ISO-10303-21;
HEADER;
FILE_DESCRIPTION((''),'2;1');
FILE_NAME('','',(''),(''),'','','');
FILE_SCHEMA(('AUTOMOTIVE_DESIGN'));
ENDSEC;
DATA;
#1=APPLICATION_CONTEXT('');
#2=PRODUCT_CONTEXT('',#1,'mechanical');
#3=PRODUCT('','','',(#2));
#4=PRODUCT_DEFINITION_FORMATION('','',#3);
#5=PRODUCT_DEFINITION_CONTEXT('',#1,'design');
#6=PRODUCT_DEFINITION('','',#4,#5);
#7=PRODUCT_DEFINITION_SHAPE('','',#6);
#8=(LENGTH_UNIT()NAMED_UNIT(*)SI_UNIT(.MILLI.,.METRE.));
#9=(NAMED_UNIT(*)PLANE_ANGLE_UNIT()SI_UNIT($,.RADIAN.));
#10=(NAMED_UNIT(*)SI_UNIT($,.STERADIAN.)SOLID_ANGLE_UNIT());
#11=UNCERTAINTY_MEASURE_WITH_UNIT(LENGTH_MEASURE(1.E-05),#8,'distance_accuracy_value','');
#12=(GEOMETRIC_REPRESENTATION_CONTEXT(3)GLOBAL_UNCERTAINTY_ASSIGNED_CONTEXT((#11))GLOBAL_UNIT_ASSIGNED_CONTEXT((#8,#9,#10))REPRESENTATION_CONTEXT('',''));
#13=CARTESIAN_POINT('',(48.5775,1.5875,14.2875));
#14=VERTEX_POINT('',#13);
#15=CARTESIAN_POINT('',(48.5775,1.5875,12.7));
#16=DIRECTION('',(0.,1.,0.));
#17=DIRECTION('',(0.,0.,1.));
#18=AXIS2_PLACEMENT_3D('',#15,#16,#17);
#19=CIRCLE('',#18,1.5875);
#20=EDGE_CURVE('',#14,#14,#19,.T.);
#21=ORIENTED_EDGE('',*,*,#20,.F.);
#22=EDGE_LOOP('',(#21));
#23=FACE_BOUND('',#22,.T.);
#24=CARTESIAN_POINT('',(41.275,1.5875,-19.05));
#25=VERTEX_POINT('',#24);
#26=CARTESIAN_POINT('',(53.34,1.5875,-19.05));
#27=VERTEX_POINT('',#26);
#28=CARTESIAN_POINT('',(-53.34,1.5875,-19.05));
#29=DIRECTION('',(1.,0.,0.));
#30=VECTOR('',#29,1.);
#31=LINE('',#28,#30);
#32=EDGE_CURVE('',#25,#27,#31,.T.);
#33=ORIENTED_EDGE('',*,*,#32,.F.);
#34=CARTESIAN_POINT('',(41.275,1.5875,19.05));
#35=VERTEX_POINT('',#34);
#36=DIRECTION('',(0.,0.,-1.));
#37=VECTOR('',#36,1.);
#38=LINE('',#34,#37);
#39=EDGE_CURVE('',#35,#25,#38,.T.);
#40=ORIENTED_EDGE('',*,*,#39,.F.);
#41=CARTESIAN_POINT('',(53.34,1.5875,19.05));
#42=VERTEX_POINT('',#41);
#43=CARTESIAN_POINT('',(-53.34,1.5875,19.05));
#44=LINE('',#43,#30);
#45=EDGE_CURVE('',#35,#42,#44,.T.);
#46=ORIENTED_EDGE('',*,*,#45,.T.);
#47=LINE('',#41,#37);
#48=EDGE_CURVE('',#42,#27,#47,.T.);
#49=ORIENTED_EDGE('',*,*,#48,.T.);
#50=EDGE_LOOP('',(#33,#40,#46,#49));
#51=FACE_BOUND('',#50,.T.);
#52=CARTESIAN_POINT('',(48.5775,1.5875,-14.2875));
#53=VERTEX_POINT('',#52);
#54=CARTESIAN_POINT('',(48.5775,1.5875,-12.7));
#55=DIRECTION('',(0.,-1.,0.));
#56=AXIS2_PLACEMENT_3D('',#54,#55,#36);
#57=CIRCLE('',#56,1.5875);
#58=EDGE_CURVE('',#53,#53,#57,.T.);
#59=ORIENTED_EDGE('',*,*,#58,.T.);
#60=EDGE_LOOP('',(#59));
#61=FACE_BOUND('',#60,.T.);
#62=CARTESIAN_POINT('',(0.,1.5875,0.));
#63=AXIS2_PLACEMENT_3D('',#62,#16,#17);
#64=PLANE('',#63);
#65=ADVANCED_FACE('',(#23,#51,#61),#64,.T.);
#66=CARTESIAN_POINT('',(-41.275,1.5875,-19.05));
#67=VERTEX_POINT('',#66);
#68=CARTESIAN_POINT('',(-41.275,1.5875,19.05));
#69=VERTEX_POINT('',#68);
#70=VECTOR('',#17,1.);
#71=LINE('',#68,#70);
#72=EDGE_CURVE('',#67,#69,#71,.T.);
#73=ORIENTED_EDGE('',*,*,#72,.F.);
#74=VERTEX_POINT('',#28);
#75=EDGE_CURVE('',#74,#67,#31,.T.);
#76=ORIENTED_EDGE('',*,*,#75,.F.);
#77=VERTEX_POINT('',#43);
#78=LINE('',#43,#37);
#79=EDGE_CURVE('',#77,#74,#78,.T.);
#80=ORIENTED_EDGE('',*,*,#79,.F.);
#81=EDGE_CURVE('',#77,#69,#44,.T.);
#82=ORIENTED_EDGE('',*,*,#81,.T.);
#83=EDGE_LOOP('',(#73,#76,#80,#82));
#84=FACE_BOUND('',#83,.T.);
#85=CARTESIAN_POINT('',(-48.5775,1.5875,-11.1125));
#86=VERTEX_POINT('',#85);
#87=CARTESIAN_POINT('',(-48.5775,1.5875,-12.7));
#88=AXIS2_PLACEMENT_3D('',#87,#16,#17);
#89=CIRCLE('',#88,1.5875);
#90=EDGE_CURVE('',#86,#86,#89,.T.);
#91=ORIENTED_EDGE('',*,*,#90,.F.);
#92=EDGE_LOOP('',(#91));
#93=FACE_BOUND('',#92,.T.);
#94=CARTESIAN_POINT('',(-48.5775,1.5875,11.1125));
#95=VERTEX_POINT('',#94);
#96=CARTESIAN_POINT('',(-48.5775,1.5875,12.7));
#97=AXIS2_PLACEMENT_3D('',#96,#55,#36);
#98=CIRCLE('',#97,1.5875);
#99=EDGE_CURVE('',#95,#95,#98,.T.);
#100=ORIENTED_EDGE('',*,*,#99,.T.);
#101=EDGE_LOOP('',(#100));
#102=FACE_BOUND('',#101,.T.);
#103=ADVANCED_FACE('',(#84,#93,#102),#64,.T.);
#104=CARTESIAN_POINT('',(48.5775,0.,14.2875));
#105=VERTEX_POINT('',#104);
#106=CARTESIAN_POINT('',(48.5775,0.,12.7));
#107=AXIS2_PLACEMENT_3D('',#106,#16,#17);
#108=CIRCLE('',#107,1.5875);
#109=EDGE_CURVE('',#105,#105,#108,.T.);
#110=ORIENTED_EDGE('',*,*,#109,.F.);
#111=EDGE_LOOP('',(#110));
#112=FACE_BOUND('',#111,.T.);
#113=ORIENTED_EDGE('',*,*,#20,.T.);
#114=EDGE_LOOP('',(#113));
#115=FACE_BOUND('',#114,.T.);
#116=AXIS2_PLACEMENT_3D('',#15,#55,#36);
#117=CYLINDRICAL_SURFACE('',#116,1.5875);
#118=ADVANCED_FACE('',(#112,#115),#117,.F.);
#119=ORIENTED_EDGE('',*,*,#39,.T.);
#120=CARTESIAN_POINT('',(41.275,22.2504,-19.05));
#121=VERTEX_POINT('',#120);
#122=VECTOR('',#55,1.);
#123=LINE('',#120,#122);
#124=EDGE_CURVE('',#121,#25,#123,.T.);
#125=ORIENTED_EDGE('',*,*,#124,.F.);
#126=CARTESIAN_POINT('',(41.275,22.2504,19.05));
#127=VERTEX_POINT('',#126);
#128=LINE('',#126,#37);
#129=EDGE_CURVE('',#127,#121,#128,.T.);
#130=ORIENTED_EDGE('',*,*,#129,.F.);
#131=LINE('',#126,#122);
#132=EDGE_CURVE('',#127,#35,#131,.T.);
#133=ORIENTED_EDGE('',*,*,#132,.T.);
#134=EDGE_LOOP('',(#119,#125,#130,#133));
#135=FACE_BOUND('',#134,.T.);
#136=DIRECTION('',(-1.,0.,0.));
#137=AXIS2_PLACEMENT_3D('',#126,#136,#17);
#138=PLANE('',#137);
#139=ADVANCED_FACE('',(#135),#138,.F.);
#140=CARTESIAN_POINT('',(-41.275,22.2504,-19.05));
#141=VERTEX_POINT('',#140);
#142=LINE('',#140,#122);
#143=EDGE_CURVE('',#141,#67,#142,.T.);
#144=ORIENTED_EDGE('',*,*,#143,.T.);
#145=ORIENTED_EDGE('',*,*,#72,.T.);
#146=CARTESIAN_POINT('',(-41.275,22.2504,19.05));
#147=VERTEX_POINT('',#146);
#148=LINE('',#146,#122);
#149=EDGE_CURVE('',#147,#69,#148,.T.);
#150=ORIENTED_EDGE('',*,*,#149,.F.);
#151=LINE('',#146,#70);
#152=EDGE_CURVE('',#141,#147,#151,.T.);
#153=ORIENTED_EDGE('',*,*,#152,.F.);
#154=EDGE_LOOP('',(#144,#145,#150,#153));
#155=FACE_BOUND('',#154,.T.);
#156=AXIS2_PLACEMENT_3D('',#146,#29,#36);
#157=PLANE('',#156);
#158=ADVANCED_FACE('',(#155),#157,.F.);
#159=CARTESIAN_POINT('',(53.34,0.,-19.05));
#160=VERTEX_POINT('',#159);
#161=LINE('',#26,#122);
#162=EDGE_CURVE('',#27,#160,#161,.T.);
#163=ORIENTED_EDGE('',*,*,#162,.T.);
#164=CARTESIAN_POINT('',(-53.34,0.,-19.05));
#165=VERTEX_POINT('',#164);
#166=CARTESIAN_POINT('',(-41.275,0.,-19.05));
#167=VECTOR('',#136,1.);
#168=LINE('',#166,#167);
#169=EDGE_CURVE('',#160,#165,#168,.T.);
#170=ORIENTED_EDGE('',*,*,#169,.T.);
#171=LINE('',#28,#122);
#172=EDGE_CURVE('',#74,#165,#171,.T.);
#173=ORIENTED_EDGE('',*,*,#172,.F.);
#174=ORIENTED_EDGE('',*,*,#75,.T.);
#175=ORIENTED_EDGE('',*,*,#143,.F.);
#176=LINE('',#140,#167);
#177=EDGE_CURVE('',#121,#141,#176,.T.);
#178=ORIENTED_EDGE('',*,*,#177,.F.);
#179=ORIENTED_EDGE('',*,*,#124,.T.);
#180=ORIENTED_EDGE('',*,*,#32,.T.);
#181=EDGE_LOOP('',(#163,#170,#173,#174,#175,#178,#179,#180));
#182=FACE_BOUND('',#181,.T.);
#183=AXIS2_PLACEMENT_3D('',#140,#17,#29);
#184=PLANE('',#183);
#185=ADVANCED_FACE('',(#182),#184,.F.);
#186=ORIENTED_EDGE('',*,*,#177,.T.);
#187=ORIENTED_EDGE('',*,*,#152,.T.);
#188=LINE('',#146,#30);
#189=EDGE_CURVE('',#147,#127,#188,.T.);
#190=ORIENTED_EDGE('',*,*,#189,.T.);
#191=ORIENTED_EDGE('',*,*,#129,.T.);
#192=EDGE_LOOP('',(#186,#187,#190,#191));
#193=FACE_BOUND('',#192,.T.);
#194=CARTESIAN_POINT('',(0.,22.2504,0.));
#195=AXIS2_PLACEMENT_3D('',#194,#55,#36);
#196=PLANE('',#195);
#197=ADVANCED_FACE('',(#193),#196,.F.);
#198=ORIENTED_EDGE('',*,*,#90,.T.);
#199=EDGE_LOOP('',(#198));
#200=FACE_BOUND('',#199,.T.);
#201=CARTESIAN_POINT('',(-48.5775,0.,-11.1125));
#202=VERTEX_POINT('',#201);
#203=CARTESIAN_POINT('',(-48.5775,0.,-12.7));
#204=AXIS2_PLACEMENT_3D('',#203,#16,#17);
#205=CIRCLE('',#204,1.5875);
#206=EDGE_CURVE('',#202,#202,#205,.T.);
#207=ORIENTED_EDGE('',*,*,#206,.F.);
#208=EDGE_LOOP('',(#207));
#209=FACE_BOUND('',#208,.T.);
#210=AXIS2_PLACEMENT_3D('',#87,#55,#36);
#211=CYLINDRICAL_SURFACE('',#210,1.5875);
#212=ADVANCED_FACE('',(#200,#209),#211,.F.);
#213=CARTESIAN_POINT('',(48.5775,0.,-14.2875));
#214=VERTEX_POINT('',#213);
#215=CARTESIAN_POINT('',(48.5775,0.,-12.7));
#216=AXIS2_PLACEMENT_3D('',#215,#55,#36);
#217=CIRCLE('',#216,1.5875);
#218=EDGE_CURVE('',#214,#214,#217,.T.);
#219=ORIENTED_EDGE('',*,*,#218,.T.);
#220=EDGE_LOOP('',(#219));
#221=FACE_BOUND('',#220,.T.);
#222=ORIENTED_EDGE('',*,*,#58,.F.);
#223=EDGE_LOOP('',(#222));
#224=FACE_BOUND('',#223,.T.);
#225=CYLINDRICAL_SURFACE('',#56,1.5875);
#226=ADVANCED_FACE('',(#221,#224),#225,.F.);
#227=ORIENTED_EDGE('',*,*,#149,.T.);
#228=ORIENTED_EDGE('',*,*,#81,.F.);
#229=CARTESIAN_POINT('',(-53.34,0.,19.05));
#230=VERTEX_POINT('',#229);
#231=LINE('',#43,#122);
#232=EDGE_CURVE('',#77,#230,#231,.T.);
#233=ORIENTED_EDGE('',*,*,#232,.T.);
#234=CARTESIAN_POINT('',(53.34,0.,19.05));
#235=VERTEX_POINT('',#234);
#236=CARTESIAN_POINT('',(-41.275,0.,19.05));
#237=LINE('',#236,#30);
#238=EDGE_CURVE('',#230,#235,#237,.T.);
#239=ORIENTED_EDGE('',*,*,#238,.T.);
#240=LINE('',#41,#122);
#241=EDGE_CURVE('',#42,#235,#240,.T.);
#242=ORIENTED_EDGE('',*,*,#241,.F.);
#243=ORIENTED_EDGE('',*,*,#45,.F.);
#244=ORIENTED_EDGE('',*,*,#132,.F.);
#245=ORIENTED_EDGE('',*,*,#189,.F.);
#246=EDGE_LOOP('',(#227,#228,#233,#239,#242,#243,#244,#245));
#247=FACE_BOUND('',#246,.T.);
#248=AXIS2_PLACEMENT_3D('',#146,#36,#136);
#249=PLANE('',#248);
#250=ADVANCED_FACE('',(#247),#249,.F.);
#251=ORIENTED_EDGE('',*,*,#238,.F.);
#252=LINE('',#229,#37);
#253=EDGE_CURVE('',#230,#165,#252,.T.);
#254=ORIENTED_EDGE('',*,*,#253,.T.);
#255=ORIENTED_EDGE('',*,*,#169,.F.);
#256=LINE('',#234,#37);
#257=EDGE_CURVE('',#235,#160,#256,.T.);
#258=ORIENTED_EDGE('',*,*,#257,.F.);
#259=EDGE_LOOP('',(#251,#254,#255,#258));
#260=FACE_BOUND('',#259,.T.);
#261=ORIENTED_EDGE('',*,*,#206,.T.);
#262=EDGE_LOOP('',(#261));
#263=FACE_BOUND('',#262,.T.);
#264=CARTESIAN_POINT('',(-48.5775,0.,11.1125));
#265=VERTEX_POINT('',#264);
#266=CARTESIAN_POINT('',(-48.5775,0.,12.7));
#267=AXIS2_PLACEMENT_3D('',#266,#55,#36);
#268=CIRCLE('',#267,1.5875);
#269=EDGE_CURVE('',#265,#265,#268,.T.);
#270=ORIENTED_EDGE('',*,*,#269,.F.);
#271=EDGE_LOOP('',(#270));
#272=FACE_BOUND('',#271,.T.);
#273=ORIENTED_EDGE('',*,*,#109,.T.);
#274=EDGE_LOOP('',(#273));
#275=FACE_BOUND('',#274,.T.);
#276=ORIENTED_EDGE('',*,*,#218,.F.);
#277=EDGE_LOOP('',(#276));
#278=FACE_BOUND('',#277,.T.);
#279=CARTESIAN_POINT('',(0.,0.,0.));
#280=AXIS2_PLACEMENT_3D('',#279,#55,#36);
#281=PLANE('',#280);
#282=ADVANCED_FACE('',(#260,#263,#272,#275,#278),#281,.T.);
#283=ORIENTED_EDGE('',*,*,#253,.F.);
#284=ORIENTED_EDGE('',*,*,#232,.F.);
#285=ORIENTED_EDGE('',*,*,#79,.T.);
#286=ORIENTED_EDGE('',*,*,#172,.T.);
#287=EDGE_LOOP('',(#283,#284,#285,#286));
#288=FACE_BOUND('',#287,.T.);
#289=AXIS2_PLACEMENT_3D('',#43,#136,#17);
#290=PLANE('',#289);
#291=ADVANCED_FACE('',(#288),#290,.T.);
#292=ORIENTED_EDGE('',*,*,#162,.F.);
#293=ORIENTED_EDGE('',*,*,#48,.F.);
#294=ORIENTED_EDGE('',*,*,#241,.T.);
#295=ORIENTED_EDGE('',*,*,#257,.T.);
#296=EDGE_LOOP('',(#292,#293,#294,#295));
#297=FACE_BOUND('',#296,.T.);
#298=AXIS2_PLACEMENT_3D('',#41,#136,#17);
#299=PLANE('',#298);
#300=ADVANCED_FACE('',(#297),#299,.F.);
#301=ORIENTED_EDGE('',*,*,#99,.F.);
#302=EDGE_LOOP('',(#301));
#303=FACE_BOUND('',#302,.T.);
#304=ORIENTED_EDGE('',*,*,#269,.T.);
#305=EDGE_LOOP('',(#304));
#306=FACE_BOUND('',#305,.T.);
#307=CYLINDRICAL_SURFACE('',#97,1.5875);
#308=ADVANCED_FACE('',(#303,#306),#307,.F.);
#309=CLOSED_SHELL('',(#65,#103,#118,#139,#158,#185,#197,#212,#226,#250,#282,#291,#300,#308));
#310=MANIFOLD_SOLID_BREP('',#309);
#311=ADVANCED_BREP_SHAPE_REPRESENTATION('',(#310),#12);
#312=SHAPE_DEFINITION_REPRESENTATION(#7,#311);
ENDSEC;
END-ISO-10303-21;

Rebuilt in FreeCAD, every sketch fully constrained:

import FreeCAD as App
import Part
import Sketcher

V = App.Vector
Q = App.Units.Quantity


def add_polygon(sketch, points):
    """Adds a closed chain of lines whose ends are joined by coincident constraints."""
    first, n = sketch.GeometryCount, len(points)
    for a, b in zip(points, points[1:] + points[:1]):
        sketch.addGeometry(Part.LineSegment(App.Vector(*a, 0), App.Vector(*b, 0)), False)
    for i in range(n):
        sketch.addConstraint(Sketcher.Constraint("Coincident", first + i, 2, first + (i + 1) % n, 1))

doc = App.newDocument("Part")
params = doc.addObject("Spreadsheet::Sheet", "Params")
for row, (alias, value) in enumerate([
    ("sketch1_height", "1.5 in"),
    ("sketch1_width", "3.25 in"),
    ("pad1_length", "0.876 in"),
    ("sketch2_diameter", "0.125 in"),
    ("sketch2_width", "4.2 in"),
    ("sketch2_height", "1.5 in"),
    ("pad2_length", "0.0625 in"),
], start=1):
    params.set(f"A{row}", alias)
    params.set(f"B{row}", "=" + value)
    params.setAlias(f"B{row}", alias)

body = doc.addObject("PartDesign::Body", "Body")

# Sketch on XZ plane
sketch1 = body.newObject("Sketcher::SketchObject", "Sketch")
sketch1.AttachmentSupport = (doc.getObject("XZ_Plane"), [""])
sketch1.MapMode = "FlatFace"
add_polygon(sketch1, [(-41.275, -19.05), (-41.275, 19.05), (41.275, 19.05), (41.275, -19.05)])  # lines 0-3
sketch1.addConstraint([
    Sketcher.Constraint("Vertical", 0),
    Sketcher.Constraint("Horizontal", 1),
    Sketcher.Constraint("Vertical", 2),
    Sketcher.Constraint("Horizontal", 3),
    Sketcher.Constraint("Symmetric", 0, 2, 2, 2, -1, 1),
    Sketcher.Constraint("DistanceY", 0, 1, 0, 2, Q("1.5 in")),
    Sketcher.Constraint("DistanceX", 1, 1, 1, 2, Q("3.25 in")),
])
sketch1.setExpression("Constraints[9]", "Params.sketch1_height")
sketch1.setExpression("Constraints[10]", "Params.sketch1_width")
pad1 = body.newObject("PartDesign::Pad", "Pad")
pad1.Profile = sketch1
pad1.setExpression("Length", "Params.pad1_length")
pad1.Reversed = True

# Sketch on XZ plane
sketch2 = body.newObject("Sketcher::SketchObject", "Sketch001")
sketch2.AttachmentSupport = (doc.getObject("XZ_Plane"), [""])
sketch2.MapMode = "FlatFace"
add_polygon(sketch2, [(-53.34, -19.05), (-53.34, 19.05), (53.34, 19.05), (53.34, -19.05)])  # lines 0-3
sketch2.addGeometry(Part.Circle(V(-48.5775, 12.7, 0), V(0, 0, 1), 1.5875), False)  # 4
sketch2.addGeometry(Part.Circle(V(48.5775, 12.7, 0), V(0, 0, 1), 1.5875), False)  # 5
sketch2.addGeometry(Part.Circle(V(-48.5775, -12.7, 0), V(0, 0, 1), 1.5875), False)  # 6
sketch2.addGeometry(Part.Circle(V(48.5775, -12.7, 0), V(0, 0, 1), 1.5875), False)  # 7
sketch2.addConstraint([
    Sketcher.Constraint("Vertical", 0),
    Sketcher.Constraint("Horizontal", 1),
    Sketcher.Constraint("Vertical", 2),
    Sketcher.Constraint("Horizontal", 3),
    Sketcher.Constraint("Equal", 4, 5),
    Sketcher.Constraint("Equal", 5, 6),
    Sketcher.Constraint("Equal", 6, 7),
    Sketcher.Constraint("Symmetric", 5, 3, 6, 3, -1, 1),
    Sketcher.Constraint("Symmetric", 4, 3, 7, 3, -1, 1),
    Sketcher.Constraint("Symmetric", 0, 2, 2, 2, -1, 1),
    Sketcher.Constraint("Symmetric", 4, 3, 5, 3, -2),
    Sketcher.Constraint("Diameter", 4, Q("0.125 in")),
    Sketcher.Constraint("DistanceX", 1, 1, 1, 2, Q("4.2 in")),
    Sketcher.Constraint("DistanceY", 0, 1, 0, 2, Q("1.5 in")),
    Sketcher.Constraint("DistanceY", 6, 3, 4, 3, Q("1 in")),
    Sketcher.Constraint("DistanceX", 4, 3, 5, 3, Q("3.825 in")),
])
sketch2.setExpression("Constraints[15]", "Params.sketch2_diameter")
sketch2.setExpression("Constraints[16]", "Params.sketch2_width")
sketch2.setExpression("Constraints[17]", "Params.sketch2_height")
pad2 = body.newObject("PartDesign::Pad", "Pad001")
pad2.Profile = sketch2
pad2.setExpression("Length", "Params.pad2_length")
pad2.Reversed = True

doc.recompute()
